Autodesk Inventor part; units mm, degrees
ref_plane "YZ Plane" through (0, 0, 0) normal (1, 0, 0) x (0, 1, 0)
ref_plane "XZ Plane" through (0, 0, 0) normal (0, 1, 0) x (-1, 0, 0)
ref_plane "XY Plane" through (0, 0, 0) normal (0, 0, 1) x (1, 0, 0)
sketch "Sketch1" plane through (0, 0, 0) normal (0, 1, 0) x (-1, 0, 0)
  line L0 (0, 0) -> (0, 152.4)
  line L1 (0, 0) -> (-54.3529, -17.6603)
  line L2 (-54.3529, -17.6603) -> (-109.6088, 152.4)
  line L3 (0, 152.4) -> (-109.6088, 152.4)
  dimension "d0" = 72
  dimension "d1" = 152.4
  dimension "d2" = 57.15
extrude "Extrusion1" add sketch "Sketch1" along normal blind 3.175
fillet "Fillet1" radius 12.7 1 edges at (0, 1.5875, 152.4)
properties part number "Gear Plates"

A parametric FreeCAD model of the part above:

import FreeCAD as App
import Part
import Sketcher

V = App.Vector
Q = App.Units.Quantity


def edges_at(feature, points):
    """Names of the edges that pass closest to the given points."""
    edges = feature.Shape.Edges
    near = lambda p: min(range(len(edges)), key=lambda i: edges[i].distToShape(Part.Vertex(*p))[0])
    return sorted({f"Edge{near(p) + 1}" for p in points})


def add_polygon(sketch, points):
    """Adds a closed chain of lines whose ends are joined by coincident constraints."""
    first, n = sketch.GeometryCount, len(points)
    for a, b in zip(points, points[1:] + points[:1]):
        sketch.addGeometry(Part.LineSegment(App.Vector(*a, 0), App.Vector(*b, 0)), False)
    for i in range(n):
        sketch.addConstraint(Sketcher.Constraint("Coincident", first + i, 2, first + (i + 1) % n, 1))

doc = App.newDocument("Part")
params = doc.addObject("Spreadsheet::Sheet", "Params")
for row, (alias, value) in enumerate([
    ("sketch1_height", "6 in"),
    ("sketch1_length", "2.25 in"),
    ("pad1_length", "0.125 in"),
    ("fillet_radius", "0.5 in"),
], start=1):
    params.set(f"A{row}", alias)
    params.set(f"B{row}", "=" + value)
    params.setAlias(f"B{row}", alias)

body = doc.addObject("PartDesign::Body", "Body")

# Sketch on XZ plane
sketch1 = body.newObject("Sketcher::SketchObject", "Sketch")
sketch1.AttachmentSupport = (doc.getObject("XZ_Plane"), [""])
sketch1.MapMode = "FlatFace"
add_polygon(sketch1, [(54, -18), (0, 0), (0, 152), (110, 152)])  # lines 0-3
sketch1.addConstraint([
    Sketcher.Constraint("Vertical", 1),
    Sketcher.Constraint("Horizontal", 2),
    Sketcher.Constraint("Coincident", 0, 2, -1, 1),
    Sketcher.Constraint("Perpendicular", 0, 3),
    Sketcher.Constraint("DistanceY", 1, 1, 1, 2, Q("6 in")),
    Sketcher.Constraint("Distance", 0, Q("2.25 in")),
    Sketcher.Constraint("Angle", 0, Q("162 deg")),
])
sketch1.setExpression("Constraints[8]", "Params.sketch1_height")
sketch1.setExpression("Constraints[9]", "Params.sketch1_length")
pad1 = body.newObject("PartDesign::Pad", "Pad")
pad1.Profile = sketch1
pad1.setExpression("Length", "Params.pad1_length")
pad1.Reversed = True
doc.recompute()

fillet = body.newObject("PartDesign::Fillet", "Fillet")
fillet.Base = (pad1, edges_at(pad1, [(0, 1.587, 152.4)]))
fillet.setExpression("Radius", "Params.fillet_radius")

doc.recompute()
